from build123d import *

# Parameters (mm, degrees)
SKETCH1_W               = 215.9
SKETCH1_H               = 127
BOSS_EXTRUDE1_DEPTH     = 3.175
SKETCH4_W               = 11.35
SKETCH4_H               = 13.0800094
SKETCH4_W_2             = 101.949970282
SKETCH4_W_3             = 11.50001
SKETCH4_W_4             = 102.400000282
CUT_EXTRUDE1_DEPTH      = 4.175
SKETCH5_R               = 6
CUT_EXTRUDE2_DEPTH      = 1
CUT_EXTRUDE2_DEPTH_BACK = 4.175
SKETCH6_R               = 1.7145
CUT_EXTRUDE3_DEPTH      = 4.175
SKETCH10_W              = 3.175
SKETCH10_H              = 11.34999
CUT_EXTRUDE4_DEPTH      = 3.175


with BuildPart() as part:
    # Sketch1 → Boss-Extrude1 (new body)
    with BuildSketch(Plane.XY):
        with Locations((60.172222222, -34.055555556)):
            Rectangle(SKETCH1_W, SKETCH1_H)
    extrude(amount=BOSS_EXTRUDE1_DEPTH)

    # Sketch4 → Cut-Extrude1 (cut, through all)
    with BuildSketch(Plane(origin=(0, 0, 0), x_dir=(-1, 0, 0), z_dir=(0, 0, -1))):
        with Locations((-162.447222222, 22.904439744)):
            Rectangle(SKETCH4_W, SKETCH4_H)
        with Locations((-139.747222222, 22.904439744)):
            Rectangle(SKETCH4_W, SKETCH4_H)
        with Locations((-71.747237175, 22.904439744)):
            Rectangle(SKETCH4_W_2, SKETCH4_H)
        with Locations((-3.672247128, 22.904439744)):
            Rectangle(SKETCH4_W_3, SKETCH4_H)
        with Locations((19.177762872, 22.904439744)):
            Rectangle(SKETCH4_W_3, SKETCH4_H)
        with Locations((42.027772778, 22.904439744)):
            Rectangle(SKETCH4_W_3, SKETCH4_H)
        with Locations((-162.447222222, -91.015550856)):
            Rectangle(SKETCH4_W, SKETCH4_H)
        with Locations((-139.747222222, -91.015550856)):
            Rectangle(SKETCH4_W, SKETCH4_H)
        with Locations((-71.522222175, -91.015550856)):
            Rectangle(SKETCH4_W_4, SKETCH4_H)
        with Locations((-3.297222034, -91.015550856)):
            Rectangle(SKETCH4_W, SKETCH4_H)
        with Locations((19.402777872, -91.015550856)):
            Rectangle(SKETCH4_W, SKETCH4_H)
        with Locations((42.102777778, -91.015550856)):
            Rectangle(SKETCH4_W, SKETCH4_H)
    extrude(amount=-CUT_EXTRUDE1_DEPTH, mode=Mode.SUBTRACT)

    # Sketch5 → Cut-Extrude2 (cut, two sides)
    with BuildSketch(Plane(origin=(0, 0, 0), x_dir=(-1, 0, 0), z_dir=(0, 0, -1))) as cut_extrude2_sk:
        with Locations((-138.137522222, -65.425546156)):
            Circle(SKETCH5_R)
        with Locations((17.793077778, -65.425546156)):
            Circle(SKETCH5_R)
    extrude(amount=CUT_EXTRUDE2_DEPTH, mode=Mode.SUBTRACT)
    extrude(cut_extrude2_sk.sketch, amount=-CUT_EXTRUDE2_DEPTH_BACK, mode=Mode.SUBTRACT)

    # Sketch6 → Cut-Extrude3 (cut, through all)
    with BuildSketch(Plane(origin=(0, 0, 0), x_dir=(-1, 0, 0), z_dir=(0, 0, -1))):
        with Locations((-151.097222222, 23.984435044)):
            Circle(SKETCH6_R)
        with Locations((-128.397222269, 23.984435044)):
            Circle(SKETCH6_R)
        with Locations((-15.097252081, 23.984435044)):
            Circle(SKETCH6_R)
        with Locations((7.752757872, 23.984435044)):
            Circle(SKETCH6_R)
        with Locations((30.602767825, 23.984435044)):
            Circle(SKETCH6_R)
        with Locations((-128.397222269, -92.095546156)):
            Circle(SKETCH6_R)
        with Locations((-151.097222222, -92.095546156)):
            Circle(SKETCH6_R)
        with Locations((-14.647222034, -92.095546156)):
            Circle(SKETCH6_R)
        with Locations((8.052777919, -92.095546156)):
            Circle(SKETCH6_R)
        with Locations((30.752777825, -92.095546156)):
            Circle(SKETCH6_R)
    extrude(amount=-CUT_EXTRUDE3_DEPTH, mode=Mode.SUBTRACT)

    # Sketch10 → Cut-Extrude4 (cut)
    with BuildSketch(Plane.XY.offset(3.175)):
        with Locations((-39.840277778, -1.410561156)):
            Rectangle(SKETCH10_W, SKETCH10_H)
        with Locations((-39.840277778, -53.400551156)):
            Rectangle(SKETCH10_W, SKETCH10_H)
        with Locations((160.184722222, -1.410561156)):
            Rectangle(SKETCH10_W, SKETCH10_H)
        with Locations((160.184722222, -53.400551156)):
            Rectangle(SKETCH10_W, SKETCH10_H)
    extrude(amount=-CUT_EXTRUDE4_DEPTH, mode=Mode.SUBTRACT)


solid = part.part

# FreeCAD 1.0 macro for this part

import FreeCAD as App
import Part
import Sketcher
Q = App.Units.Quantity

doc = App.newDocument("Part")
body = doc.addObject("PartDesign::Body", "Body")

sketch1 = body.newObject("Sketcher::SketchObject", "Sketch")
sketch1.AttachmentSupport = (doc.getObject("XY_Plane"), [""])
sketch1.MapMode = "FlatFace"
sketch1.addGeometry([
    Part.LineSegment(App.Vector(-47.777778, 29.444444, 0), App.Vector(-47.777778, -97.555556, 0)),
    Part.LineSegment(App.Vector(-47.777778, -97.555556, 0), App.Vector(168.122222, -97.555556, 0)),
    Part.LineSegment(App.Vector(168.122222, -97.555556, 0), App.Vector(168.122222, 29.444444, 0)),
    Part.LineSegment(App.Vector(168.122222, 29.444444, 0), App.Vector(-47.777778, 29.444444, 0)),
], False)
sketch1.addConstraint([
    Sketcher.Constraint("Coincident", 0, 2, 1, 1),
    Sketcher.Constraint("Coincident", 1, 2, 2, 1),
    Sketcher.Constraint("Coincident", 2, 2, 3, 1),
    Sketcher.Constraint("Coincident", 3, 2, 0, 1),
    Sketcher.Constraint("Vertical", 0),
    Sketcher.Constraint("Horizontal", 1),
    Sketcher.Constraint("Vertical", 2),
    Sketcher.Constraint("Horizontal", 3),
    Sketcher.Constraint("DistanceY", 0, 2, 0, 1, Q("5 in")),
    Sketcher.Constraint("DistanceX", 1, 1, 1, 2, Q("8.5 in")),
    Sketcher.Constraint("DistanceX", 0, 2, -1, 1, Q("47.777778 mm")),
    Sketcher.Constraint("DistanceY", 0, 2, -1, 1, Q("97.555556 mm")),
])
pad1 = body.newObject("PartDesign::Pad", "Pad")
pad1.Profile = sketch1
pad1.Length = Q("0.125 in")

sketch2 = body.newObject("Sketcher::SketchObject", "Sketch001")
sketch2.AttachmentSupport = (doc.getObject("XY_Plane"), [""])
sketch2.MapMode = "FlatFace"
sketch2.addGeometry([
    Part.LineSegment(App.Vector(168.122222, 29.444444, 0), App.Vector(168.122222, 16.364435, 0)),
    Part.LineSegment(App.Vector(168.122222, 16.364435, 0), App.Vector(156.772222, 16.364435, 0)),
    Part.LineSegment(App.Vector(156.772222, 16.364435, 0), App.Vector(156.772222, 29.444444, 0)),
    Part.LineSegment(App.Vector(156.772222, 29.444444, 0), App.Vector(168.122222, 29.444444, 0)),
    Part.LineSegment(App.Vector(145.422222, 29.444444, 0), App.Vector(145.422222, 16.364435, 0)),
    Part.LineSegment(App.Vector(145.422222, 16.364435, 0), App.Vector(134.072222, 16.364435, 0)),
    Part.LineSegment(App.Vector(134.072222, 16.364435, 0), App.Vector(134.072222, 29.444444, 0)),
    Part.LineSegment(App.Vector(134.072222, 29.444444, 0), App.Vector(145.422222, 29.444444, 0)),
    Part.LineSegment(App.Vector(122.722222, 29.444444, 0), App.Vector(122.722222, 16.364435, 0)),
    Part.LineSegment(App.Vector(122.722222, 16.364435, 0), App.Vector(20.772252, 16.364435, 0)),
    Part.LineSegment(App.Vector(20.772252, 16.364435, 0), App.Vector(20.772252, 29.444444, 0)),
    Part.LineSegment(App.Vector(20.772252, 29.444444, 0), App.Vector(122.722222, 29.444444, 0)),
    Part.LineSegment(App.Vector(9.422252, 29.444444, 0), App.Vector(9.422252, 16.364435, 0)),
    Part.LineSegment(App.Vector(9.422252, 16.364435, 0), App.Vector(-2.077758, 16.364435, 0)),
    Part.LineSegment(App.Vector(-2.077758, 16.364435, 0), App.Vector(-2.077758, 29.444444, 0)),
    Part.LineSegment(App.Vector(-2.077758, 29.444444, 0), App.Vector(9.422252, 29.444444, 0)),
    Part.LineSegment(App.Vector(-13.427758, 29.444444, 0), App.Vector(-13.427758, 16.364435, 0)),
    Part.LineSegment(App.Vector(-13.427758, 16.364435, 0), App.Vector(-24.927768, 16.364435, 0)),
    Part.LineSegment(App.Vector(-24.927768, 16.364435, 0), App.Vector(-24.927768, 29.444444, 0)),
    Part.LineSegment(App.Vector(-24.927768, 29.444444, 0), App.Vector(-13.427758, 29.444444, 0)),
    Part.LineSegment(App.Vector(-36.277768, 29.444444, 0), App.Vector(-36.277768, 16.364435, 0)),
    Part.LineSegment(App.Vector(-36.277768, 16.364435, 0), App.Vector(-47.777778, 16.364435, 0)),
    Part.LineSegment(App.Vector(-47.777778, 16.364435, 0), App.Vector(-47.777778, 29.444444, 0)),
    Part.LineSegment(App.Vector(-47.777778, 29.444444, 0), App.Vector(-36.277768, 29.444444, 0)),
    Part.LineSegment(App.Vector(168.122222, -84.475546, 0), App.Vector(168.122222, -97.555556, 0)),
    Part.LineSegment(App.Vector(168.122222, -97.555556, 0), App.Vector(156.772222, -97.555556, 0)),
    Part.LineSegment(App.Vector(156.772222, -97.555556, 0), App.Vector(156.772222, -84.475546, 0)),
    Part.LineSegment(App.Vector(156.772222, -84.475546, 0), App.Vector(168.122222, -84.475546, 0)),
    Part.LineSegment(App.Vector(145.422222, -84.475546, 0), App.Vector(145.422222, -97.555556, 0)),
    Part.LineSegment(App.Vector(145.422222, -97.555556, 0), App.Vector(134.072222, -97.555556, 0)),
    Part.LineSegment(App.Vector(134.072222, -97.555556, 0), App.Vector(134.072222, -84.475546, 0)),
    Part.LineSegment(App.Vector(134.072222, -84.475546, 0), App.Vector(145.422222, -84.475546, 0)),
    Part.LineSegment(App.Vector(122.722222, -84.475546, 0), App.Vector(122.722222, -97.555556, 0)),
    Part.LineSegment(App.Vector(122.722222, -97.555556, 0), App.Vector(20.322222, -97.555556, 0)),
    Part.LineSegment(App.Vector(20.322222, -97.555556, 0), App.Vector(20.322222, -84.475546, 0)),
    Part.LineSegment(App.Vector(20.322222, -84.475546, 0), App.Vector(122.722222, -84.475546, 0)),
    Part.LineSegment(App.Vector(8.972222, -84.475546, 0), App.Vector(8.972222, -97.555556, 0)),
    Part.LineSegment(App.Vector(8.972222, -97.555556, 0), App.Vector(-2.377778, -97.555556, 0)),
    Part.LineSegment(App.Vector(-2.377778, -97.555556, 0), App.Vector(-2.377778, -84.475546, 0)),
    Part.LineSegment(App.Vector(-2.377778, -84.475546, 0), App.Vector(8.972222, -84.475546, 0)),
    Part.LineSegment(App.Vector(-13.727778, -84.475546, 0), App.Vector(-13.727778, -97.555556, 0)),
    Part.LineSegment(App.Vector(-13.727778, -97.555556, 0), App.Vector(-25.077778, -97.555556, 0)),
    Part.LineSegment(App.Vector(-25.077778, -97.555556, 0), App.Vector(-25.077778, -84.475546, 0)),
    Part.LineSegment(App.Vector(-25.077778, -84.475546, 0), App.Vector(-13.727778, -84.475546, 0)),
    Part.LineSegment(App.Vector(-36.427778, -84.475546, 0), App.Vector(-36.427778, -97.555556, 0)),
    Part.LineSegment(App.Vector(-36.427778, -97.555556, 0), App.Vector(-47.777778, -97.555556, 0)),
    Part.LineSegment(App.Vector(-47.777778, -97.555556, 0), App.Vector(-47.777778, -84.475546, 0)),
    Part.LineSegment(App.Vector(-47.777778, -84.475546, 0), App.Vector(-36.427778, -84.475546, 0)),
], False)
sketch2.addConstraint([
    Sketcher.Constraint("Coincident", 0, 2, 1, 1),
    Sketcher.Constraint("Coincident", 1, 2, 2, 1),
    Sketcher.Constraint("Coincident", 2, 2, 3, 1),
    Sketcher.Constraint("Coincident", 3, 2, 0, 1),
    Sketcher.Constraint("Coincident", 4, 2, 5, 1),
    Sketcher.Constraint("Coincident", 5, 2, 6, 1),
    Sketcher.Constraint("Coincident", 6, 2, 7, 1),
    Sketcher.Constraint("Coincident", 7, 2, 4, 1),
    Sketcher.Constraint("Coincident", 8, 2, 9, 1),
    Sketcher.Constraint("Coincident", 9, 2, 10, 1),
    Sketcher.Constraint("Coincident", 10, 2, 11, 1),
    Sketcher.Constraint("Coincident", 11, 2, 8, 1),
    Sketcher.Constraint("Coincident", 12, 2, 13, 1),
    Sketcher.Constraint("Coincident", 13, 2, 14, 1),
    Sketcher.Constraint("Coincident", 14, 2, 15, 1),
    Sketcher.Constraint("Coincident", 15, 2, 12, 1),
    Sketcher.Constraint("Coincident", 16, 2, 17, 1),
    Sketcher.Constraint("Coincident", 17, 2, 18, 1),
    Sketcher.Constraint("Coincident", 18, 2, 19, 1),
    Sketcher.Constraint("Coincident", 19, 2, 16, 1),
    Sketcher.Constraint("Coincident", 20, 2, 21, 1),
    Sketcher.Constraint("Coincident", 21, 2, 22, 1),
    Sketcher.Constraint("Coincident", 22, 2, 23, 1),
    Sketcher.Constraint("Coincident", 23, 2, 20, 1),
    Sketcher.Constraint("Coincident", 24, 2, 25, 1),
    Sketcher.Constraint("Coincident", 25, 2, 26, 1),
    Sketcher.Constraint("Coincident", 26, 2, 27, 1),
    Sketcher.Constraint("Coincident", 27, 2, 24, 1),
    Sketcher.Constraint("Coincident", 28, 2, 29, 1),
    Sketcher.Constraint("Coincident", 29, 2, 30, 1),
    Sketcher.Constraint("Coincident", 30, 2, 31, 1),
    Sketcher.Constraint("Coincident", 31, 2, 28, 1),
    Sketcher.Constraint("Coincident", 32, 2, 33, 1),
    Sketcher.Constraint("Coincident", 33, 2, 34, 1),
    Sketcher.Constraint("Coincident", 34, 2, 35, 1),
    Sketcher.Constraint("Coincident", 35, 2, 32, 1),
    Sketcher.Constraint("Coincident", 36, 2, 37, 1),
    Sketcher.Constraint("Coincident", 37, 2, 38, 1),
    Sketcher.Constraint("Coincident", 38, 2, 39, 1),
    Sketcher.Constraint("Coincident", 39, 2, 36, 1),
    Sketcher.Constraint("Coincident", 40, 2, 41, 1),
    Sketcher.Constraint("Coincident", 41, 2, 42, 1),
    Sketcher.Constraint("Coincident", 42, 2, 43, 1),
    Sketcher.Constraint("Coincident", 43, 2, 40, 1),
    Sketcher.Constraint("Coincident", 44, 2, 45, 1),
    Sketcher.Constraint("Coincident", 45, 2, 46, 1),
    Sketcher.Constraint("Coincident", 46, 2, 47, 1),
    Sketcher.Constraint("Coincident", 47, 2, 44, 1),
    Sketcher.Constraint("Vertical", 0),
    Sketcher.Constraint("Horizontal", 1),
    Sketcher.Constraint("Vertical", 2),
    Sketcher.Constraint("Horizontal", 3),
    Sketcher.Constraint("Vertical", 4),
    Sketcher.Constraint("Horizontal", 5),
    Sketcher.Constraint("Vertical", 6),
    Sketcher.Constraint("Horizontal", 7),
    Sketcher.Constraint("Vertical", 8),
    Sketcher.Constraint("Horizontal", 9),
    Sketcher.Constraint("Vertical", 10),
    Sketcher.Constraint("Horizontal", 11),
    Sketcher.Constraint("Vertical", 12),
    Sketcher.Constraint("Horizontal", 13),
    Sketcher.Constraint("Vertical", 14),
    Sketcher.Constraint("Horizontal", 15),
    Sketcher.Constraint("Vertical", 16),
    Sketcher.Constraint("Horizontal", 17),
    Sketcher.Constraint("Vertical", 18),
    Sketcher.Constraint("Horizontal", 19),
    Sketcher.Constraint("Vertical", 20),
    Sketcher.Constraint("Horizontal", 21),
    Sketcher.Constraint("Vertical", 22),
    Sketcher.Constraint("Horizontal", 23),
    Sketcher.Constraint("Vertical", 24),
    Sketcher.Constraint("Horizontal", 25),
    Sketcher.Constraint("Vertical", 26),
    Sketcher.Constraint("Horizontal", 27),
    Sketcher.Constraint("Vertical", 28),
    Sketcher.Constraint("Horizontal", 29),
    Sketcher.Constraint("Vertical", 30),
    Sketcher.Constraint("Horizontal", 31),
    Sketcher.Constraint("Vertical", 32),
    Sketcher.Constraint("Horizontal", 33),
    Sketcher.Constraint("Vertical", 34),
    Sketcher.Constraint("Horizontal", 35),
    Sketcher.Constraint("Vertical", 36),
    Sketcher.Constraint("Horizontal", 37),
    Sketcher.Constraint("Vertical", 38),
    Sketcher.Constraint("Horizontal", 39),
    Sketcher.Constraint("Vertical", 40),
    Sketcher.Constraint("Horizontal", 41),
    Sketcher.Constraint("Vertical", 42),
    Sketcher.Constraint("Horizontal", 43),
    Sketcher.Constraint("Vertical", 44),
    Sketcher.Constraint("Horizontal", 45),
    Sketcher.Constraint("Vertical", 46),
    Sketcher.Constraint("Horizontal", 47),
    Sketcher.Constraint("Horizontal", 1, 2, 4, 2),
    Sketcher.Constraint("Horizontal", 3, 2, 6, 2),
    Sketcher.Constraint("Horizontal", 5, 2, 8, 2),
    Sketcher.Constraint("Horizontal", 7, 2, 10, 2),
    Sketcher.Constraint("Horizontal", 9, 2, 12, 2),
    Sketcher.Constraint("Horizontal", 11, 2, 14, 2),
    Sketcher.Constraint("Horizontal", 13, 2, 16, 2),
    Sketcher.Constraint("Horizontal", 15, 2, 18, 2),
    Sketcher.Constraint("Horizontal", 17, 2, 20, 2),
    Sketcher.Constraint("Horizontal", 19, 2, 22, 2),
    Sketcher.Constraint("Horizontal", 25, 2, 28, 2),
    Sketcher.Constraint("Horizontal", 27, 2, 30, 2),
    Sketcher.Constraint("Horizontal", 29, 2, 32, 2),
    Sketcher.Constraint("Horizontal", 31, 2, 34, 2),
    Sketcher.Constraint("Horizontal", 33, 2, 36, 2),
    Sketcher.Constraint("Horizontal", 35, 2, 38, 2),
    Sketcher.Constraint("Horizontal", 37, 2, 40, 2),
    Sketcher.Constraint("Horizontal", 39, 2, 42, 2),
    Sketcher.Constraint("Horizontal", 41, 2, 44, 2),
    Sketcher.Constraint("Horizontal", 43, 2, 46, 2),
    Sketcher.Constraint("Vertical", 3, 2, 24, 2),
    Sketcher.Constraint("Vertical", 2, 2, 25, 2),
    Sketcher.Constraint("Vertical", 7, 2, 28, 2),
    Sketcher.Constraint("Vertical", 6, 2, 29, 2),
    Sketcher.Constraint("Vertical", 11, 2, 32, 2),
    Sketcher.Constraint("Vertical", 22, 2, 45, 2),
    Sketcher.Constraint("Equal", 3, 5),
    Sketcher.Constraint("Equal", 15, 17),
    Sketcher.Constraint("Equal", 19, 21),
    Sketcher.Constraint("Equal", 31, 37),
    Sketcher.Constraint("Equal", 39, 41),
    Sketcher.Constraint("Equal", 43, 45),
    Sketcher.Constraint("Equal", 22, 24),
    Sketcher.Constraint("DistanceX", 1, 2, 1, 1, Q("11.35 mm")),
    Sketcher.Constraint("DistanceX", 33, 2, 33, 1, Q("102.4 mm")),
    Sketcher.Constraint("DistanceX", 9, 2, 9, 1, Q("101.94997 mm")),
    Sketcher.Constraint("DistanceX", 13, 2, 13, 1, Q("11.50001 mm")),
    Sketcher.Constraint("DistanceY", 0, 2, 0, 1, Q("13.080009 mm")),
    Sketcher.Constraint("DistanceX", 4, 2, 1, 2, Q("11.35 mm")),
    Sketcher.Constraint("DistanceX", 8, 2, 5, 2, Q("11.35 mm")),
    Sketcher.Constraint("DistanceX", 12, 2, 9, 2, Q("11.35 mm")),
    Sketcher.Constraint("DistanceX", 16, 2, 13, 2, Q("11.35 mm")),
    Sketcher.Constraint("DistanceX", 20, 2, 17, 2, Q("11.35 mm")),
    Sketcher.Constraint("DistanceX", 36, 2, 33, 2, Q("11.35 mm")),
    Sketcher.Constraint("DistanceX", 40, 2, 37, 2, Q("11.35 mm")),
    Sketcher.Constraint("DistanceY", 24, 2, 0, 2, Q("113.919991 mm")),
    Sketcher.Constraint("DistanceX", -1, 1, 0, 2, Q("168.122222 mm")),
    Sketcher.Constraint("DistanceY", -1, 1, 0, 2, Q("16.364435 mm")),
])
pocket1 = body.newObject("PartDesign::Pocket", "Pocket")
pocket1.Profile = sketch2
pocket1.Type = "ThroughAll"
pocket1.Reversed = True

sketch3 = body.newObject("Sketcher::SketchObject", "Sketch002")
sketch3.AttachmentSupport = (doc.getObject("XY_Plane"), [""])
sketch3.MapMode = "FlatFace"
sketch3.addGeometry([
    Part.Circle(App.Vector(138.137522, -65.425546, 0), App.Vector(0, 0, 1), 6),
    Part.Circle(App.Vector(-17.793078, -65.425546, 0), App.Vector(0, 0, 1), 6),
], False)
sketch3.addConstraint([
    Sketcher.Constraint("Equal", 0, 1),
    Sketcher.Constraint("Horizontal", 0, 3, 1, 3),
    Sketcher.Constraint("Diameter", 0, Q("12 mm")),
    Sketcher.Constraint("DistanceX", 1, 3, 0, 3, Q("6.139 in")),
    Sketcher.Constraint("DistanceX", -1, 1, 0, 3, Q("138.137522 mm")),
    Sketcher.Constraint("DistanceY", 0, 3, -1, 1, Q("65.425546 mm")),
])
pocket2 = body.newObject("PartDesign::Pocket", "Pocket001")
pocket2.Profile = sketch3
pocket2.Type = "ThroughAll"
pocket2.Midplane = True

sketch4 = body.newObject("Sketcher::SketchObject", "Sketch003")
sketch4.AttachmentSupport = (doc.getObject("XY_Plane"), [""])
sketch4.MapMode = "FlatFace"
sketch4.addGeometry([
    Part.Circle(App.Vector(151.097222, 23.984435, 0), App.Vector(0, 0, 1), 1.7145),
    Part.Circle(App.Vector(128.397222, 23.984435, 0), App.Vector(0, 0, 1), 1.7145),
    Part.Circle(App.Vector(15.097252, 23.984435, 0), App.Vector(0, 0, 1), 1.7145),
    Part.Circle(App.Vector(-7.752758, 23.984435, 0), App.Vector(0, 0, 1), 1.7145),
    Part.Circle(App.Vector(-30.602768, 23.984435, 0), App.Vector(0, 0, 1), 1.7145),
    Part.Circle(App.Vector(128.397222, -92.095546, 0), App.Vector(0, 0, 1), 1.7145),
    Part.Circle(App.Vector(151.097222, -92.095546, 0), App.Vector(0, 0, 1), 1.7145),
    Part.Circle(App.Vector(14.647222, -92.095546, 0), App.Vector(0, 0, 1), 1.7145),
    Part.Circle(App.Vector(-8.052778, -92.095546, 0), App.Vector(0, 0, 1), 1.7145),
    Part.Circle(App.Vector(-30.752778, -92.095546, 0), App.Vector(0, 0, 1), 1.7145),
], False)
sketch4.addConstraint([
    Sketcher.Constraint("Equal", 0, 1),
    Sketcher.Constraint("Equal", 1, 2),
    Sketcher.Constraint("Equal", 2, 3),
    Sketcher.Constraint("Equal", 3, 4),
    Sketcher.Constraint("Equal", 4, 5),
    Sketcher.Constraint("Equal", 5, 6),
    Sketcher.Constraint("Equal", 6, 7),
    Sketcher.Constraint("Equal", 7, 8),
    Sketcher.Constraint("Equal", 8, 9),
    Sketcher.Constraint("Horizontal", 0, 3, 1, 3),
    Sketcher.Constraint("Horizontal", 1, 3, 2, 3),
    Sketcher.Constraint("Horizontal", 2, 3, 3, 3),
    Sketcher.Constraint("Horizontal", 3, 3, 4, 3),
    Sketcher.Constraint("Horizontal", 5, 3, 6, 3),
    Sketcher.Constraint("Horizontal", 6, 3, 7, 3),
    Sketcher.Constraint("Horizontal", 7, 3, 8, 3),
    Sketcher.Constraint("Horizontal", 8, 3, 9, 3),
    Sketcher.Constraint("Vertical", 1, 3, 5, 3),
    Sketcher.Constraint("Vertical", 0, 3, 6, 3),
    Sketcher.Constraint("Diameter", 0, Q("0.135 in")),
    Sketcher.Constraint("DistanceX", 1, 3, 0, 3, Q("22.7 mm")),
    Sketcher.Constraint("DistanceX", 7, 3, 5, 3, Q("113.75 mm")),
    Sketcher.Constraint("DistanceX", 8, 3, 7, 3, Q("22.7 mm")),
    Sketcher.Constraint("DistanceX", 9, 3, 8, 3, Q("22.7 mm")),
    Sketcher.Constraint("DistanceX", 2, 3, 1, 3, Q("113.29997 mm")),
    Sketcher.Constraint("DistanceX", 3, 3, 2, 3, Q("22.85001 mm")),
    Sketcher.Constraint("DistanceX", 4, 3, 3, 3, Q("22.85001 mm")),
    Sketcher.Constraint("DistanceY", 5, 3, 1, 3, Q("116.079981 mm")),
    Sketcher.Constraint("DistanceX", -1, 1, 0, 3, Q("151.097222 mm")),
    Sketcher.Constraint("DistanceY", -1, 1, 0, 3, Q("23.984435 mm")),
])
pocket3 = body.newObject("PartDesign::Pocket", "Pocket002")
pocket3.Profile = sketch4
pocket3.Type = "ThroughAll"
pocket3.Reversed = True

sketch5 = body.newObject("Sketcher::SketchObject", "Sketch004")
sketch5.AttachmentSupport = (doc.getObject("XY_Plane"), [""])
sketch5.MapMode = "FlatFace"
sketch5.AttachmentOffset = App.Placement(App.Vector(0, 0, 0.125 * 25.4), App.Rotation())
sketch5.addGeometry([
    Part.LineSegment(App.Vector(-41.427778, 4.264434, 0), App.Vector(-41.427778, -7.085556, 0)),
    Part.LineSegment(App.Vector(-41.427778, -7.085556, 0), App.Vector(-38.252778, -7.085556, 0)),
    Part.LineSegment(App.Vector(-38.252778, -7.085556, 0), App.Vector(-38.252778, 4.264434, 0)),
    Part.LineSegment(App.Vector(-38.252778, 4.264434, 0), App.Vector(-41.427778, 4.264434, 0)),
    Part.LineSegment(App.Vector(-41.427778, -47.725556, 0), App.Vector(-41.427778, -59.075546, 0)),
    Part.LineSegment(App.Vector(-41.427778, -59.075546, 0), App.Vector(-38.252778, -59.075546, 0)),
    Part.LineSegment(App.Vector(-38.252778, -59.075546, 0), App.Vector(-38.252778, -47.725556, 0)),
    Part.LineSegment(App.Vector(-38.252778, -47.725556, 0), App.Vector(-41.427778, -47.725556, 0)),
    Part.LineSegment(App.Vector(158.597222, 4.264434, 0), App.Vector(158.597222, -7.085556, 0)),
    Part.LineSegment(App.Vector(158.597222, -7.085556, 0), App.Vector(161.772222, -7.085556, 0)),
    Part.LineSegment(App.Vector(161.772222, -7.085556, 0), App.Vector(161.772222, 4.264434, 0)),
    Part.LineSegment(App.Vector(161.772222, 4.264434, 0), App.Vector(158.597222, 4.264434, 0)),
    Part.LineSegment(App.Vector(158.597222, -47.725556, 0), App.Vector(158.597222, -59.075546, 0)),
    Part.LineSegment(App.Vector(158.597222, -59.075546, 0), App.Vector(161.772222, -59.075546, 0)),
    Part.LineSegment(App.Vector(161.772222, -59.075546, 0), App.Vector(161.772222, -47.725556, 0)),
    Part.LineSegment(App.Vector(161.772222, -47.725556, 0), App.Vector(158.597222, -47.725556, 0)),
], False)
sketch5.addConstraint([
    Sketcher.Constraint("Coincident", 0, 2, 1, 1),
    Sketcher.Constraint("Coincident", 1, 2, 2, 1),
    Sketcher.Constraint("Coincident", 2, 2, 3, 1),
    Sketcher.Constraint("Coincident", 3, 2, 0, 1),
    Sketcher.Constraint("Coincident", 4, 2, 5, 1),
    Sketcher.Constraint("Coincident", 5, 2, 6, 1),
    Sketcher.Constraint("Coincident", 6, 2, 7, 1),
    Sketcher.Constraint("Coincident", 7, 2, 4, 1),
    Sketcher.Constraint("Coincident", 8, 2, 9, 1),
    Sketcher.Constraint("Coincident", 9, 2, 10, 1),
    Sketcher.Constraint("Coincident", 10, 2, 11, 1),
    Sketcher.Constraint("Coincident", 11, 2, 8, 1),
    Sketcher.Constraint("Coincident", 12, 2, 13, 1),
    Sketcher.Constraint("Coincident", 13, 2, 14, 1),
    Sketcher.Constraint("Coincident", 14, 2, 15, 1),
    Sketcher.Constraint("Coincident", 15, 2, 12, 1),
    Sketcher.Constraint("Vertical", 0),
    Sketcher.Constraint("Horizontal", 1),
    Sketcher.Constraint("Vertical", 2),
    Sketcher.Constraint("Horizontal", 3),
    Sketcher.Constraint("Vertical", 4),
    Sketcher.Constraint("Horizontal", 5),
    Sketcher.Constraint("Vertical", 6),
    Sketcher.Constraint("Horizontal", 7),
    Sketcher.Constraint("Vertical", 8),
    Sketcher.Constraint("Horizontal", 9),
    Sketcher.Constraint("Vertical", 10),
    Sketcher.Constraint("Horizontal", 11),
    Sketcher.Constraint("Vertical", 12),
    Sketcher.Constraint("Horizontal", 13),
    Sketcher.Constraint("Vertical", 14),
    Sketcher.Constraint("Horizontal", 15),
    Sketcher.Constraint("Horizontal", 1, 2, 8, 2),
    Sketcher.Constraint("Horizontal", 3, 2, 10, 2),
    Sketcher.Constraint("Horizontal", 5, 2, 12, 2),
    Sketcher.Constraint("Horizontal", 7, 2, 14, 2),
    Sketcher.Constraint("Vertical", 3, 2, 4, 2),
    Sketcher.Constraint("Vertical", 2, 2, 5, 2),
    Sketcher.Constraint("Vertical", 11, 2, 12, 2),
    Sketcher.Constraint("Vertical", 10, 2, 13, 2),
    Sketcher.Constraint("Equal", 7, 9),
    Sketcher.Constraint("Equal", 2, 4),
    Sketcher.Constraint("DistanceX", 0, 2, 9, 2, Q("8 in")),
    Sketcher.Constraint("DistanceY", 6, 2, 1, 2, Q("1.6 in")),
    Sketcher.Constraint("DistanceX", 1, 1, 1, 2, Q("0.125 in")),
    Sketcher.Constraint("DistanceY", 4, 2, 3, 2, Q("2.4937 in")),
    Sketcher.Constraint("DistanceX", 0, 2, -1, 1, Q("41.427778 mm")),
    Sketcher.Constraint("DistanceY", 0, 2, -1, 1, Q("7.085556 mm")),
])
pocket4 = body.newObject("PartDesign::Pocket", "Pocket003")
pocket4.Profile = sketch5
pocket4.Length = Q("0.125 in")

doc.recompute()
